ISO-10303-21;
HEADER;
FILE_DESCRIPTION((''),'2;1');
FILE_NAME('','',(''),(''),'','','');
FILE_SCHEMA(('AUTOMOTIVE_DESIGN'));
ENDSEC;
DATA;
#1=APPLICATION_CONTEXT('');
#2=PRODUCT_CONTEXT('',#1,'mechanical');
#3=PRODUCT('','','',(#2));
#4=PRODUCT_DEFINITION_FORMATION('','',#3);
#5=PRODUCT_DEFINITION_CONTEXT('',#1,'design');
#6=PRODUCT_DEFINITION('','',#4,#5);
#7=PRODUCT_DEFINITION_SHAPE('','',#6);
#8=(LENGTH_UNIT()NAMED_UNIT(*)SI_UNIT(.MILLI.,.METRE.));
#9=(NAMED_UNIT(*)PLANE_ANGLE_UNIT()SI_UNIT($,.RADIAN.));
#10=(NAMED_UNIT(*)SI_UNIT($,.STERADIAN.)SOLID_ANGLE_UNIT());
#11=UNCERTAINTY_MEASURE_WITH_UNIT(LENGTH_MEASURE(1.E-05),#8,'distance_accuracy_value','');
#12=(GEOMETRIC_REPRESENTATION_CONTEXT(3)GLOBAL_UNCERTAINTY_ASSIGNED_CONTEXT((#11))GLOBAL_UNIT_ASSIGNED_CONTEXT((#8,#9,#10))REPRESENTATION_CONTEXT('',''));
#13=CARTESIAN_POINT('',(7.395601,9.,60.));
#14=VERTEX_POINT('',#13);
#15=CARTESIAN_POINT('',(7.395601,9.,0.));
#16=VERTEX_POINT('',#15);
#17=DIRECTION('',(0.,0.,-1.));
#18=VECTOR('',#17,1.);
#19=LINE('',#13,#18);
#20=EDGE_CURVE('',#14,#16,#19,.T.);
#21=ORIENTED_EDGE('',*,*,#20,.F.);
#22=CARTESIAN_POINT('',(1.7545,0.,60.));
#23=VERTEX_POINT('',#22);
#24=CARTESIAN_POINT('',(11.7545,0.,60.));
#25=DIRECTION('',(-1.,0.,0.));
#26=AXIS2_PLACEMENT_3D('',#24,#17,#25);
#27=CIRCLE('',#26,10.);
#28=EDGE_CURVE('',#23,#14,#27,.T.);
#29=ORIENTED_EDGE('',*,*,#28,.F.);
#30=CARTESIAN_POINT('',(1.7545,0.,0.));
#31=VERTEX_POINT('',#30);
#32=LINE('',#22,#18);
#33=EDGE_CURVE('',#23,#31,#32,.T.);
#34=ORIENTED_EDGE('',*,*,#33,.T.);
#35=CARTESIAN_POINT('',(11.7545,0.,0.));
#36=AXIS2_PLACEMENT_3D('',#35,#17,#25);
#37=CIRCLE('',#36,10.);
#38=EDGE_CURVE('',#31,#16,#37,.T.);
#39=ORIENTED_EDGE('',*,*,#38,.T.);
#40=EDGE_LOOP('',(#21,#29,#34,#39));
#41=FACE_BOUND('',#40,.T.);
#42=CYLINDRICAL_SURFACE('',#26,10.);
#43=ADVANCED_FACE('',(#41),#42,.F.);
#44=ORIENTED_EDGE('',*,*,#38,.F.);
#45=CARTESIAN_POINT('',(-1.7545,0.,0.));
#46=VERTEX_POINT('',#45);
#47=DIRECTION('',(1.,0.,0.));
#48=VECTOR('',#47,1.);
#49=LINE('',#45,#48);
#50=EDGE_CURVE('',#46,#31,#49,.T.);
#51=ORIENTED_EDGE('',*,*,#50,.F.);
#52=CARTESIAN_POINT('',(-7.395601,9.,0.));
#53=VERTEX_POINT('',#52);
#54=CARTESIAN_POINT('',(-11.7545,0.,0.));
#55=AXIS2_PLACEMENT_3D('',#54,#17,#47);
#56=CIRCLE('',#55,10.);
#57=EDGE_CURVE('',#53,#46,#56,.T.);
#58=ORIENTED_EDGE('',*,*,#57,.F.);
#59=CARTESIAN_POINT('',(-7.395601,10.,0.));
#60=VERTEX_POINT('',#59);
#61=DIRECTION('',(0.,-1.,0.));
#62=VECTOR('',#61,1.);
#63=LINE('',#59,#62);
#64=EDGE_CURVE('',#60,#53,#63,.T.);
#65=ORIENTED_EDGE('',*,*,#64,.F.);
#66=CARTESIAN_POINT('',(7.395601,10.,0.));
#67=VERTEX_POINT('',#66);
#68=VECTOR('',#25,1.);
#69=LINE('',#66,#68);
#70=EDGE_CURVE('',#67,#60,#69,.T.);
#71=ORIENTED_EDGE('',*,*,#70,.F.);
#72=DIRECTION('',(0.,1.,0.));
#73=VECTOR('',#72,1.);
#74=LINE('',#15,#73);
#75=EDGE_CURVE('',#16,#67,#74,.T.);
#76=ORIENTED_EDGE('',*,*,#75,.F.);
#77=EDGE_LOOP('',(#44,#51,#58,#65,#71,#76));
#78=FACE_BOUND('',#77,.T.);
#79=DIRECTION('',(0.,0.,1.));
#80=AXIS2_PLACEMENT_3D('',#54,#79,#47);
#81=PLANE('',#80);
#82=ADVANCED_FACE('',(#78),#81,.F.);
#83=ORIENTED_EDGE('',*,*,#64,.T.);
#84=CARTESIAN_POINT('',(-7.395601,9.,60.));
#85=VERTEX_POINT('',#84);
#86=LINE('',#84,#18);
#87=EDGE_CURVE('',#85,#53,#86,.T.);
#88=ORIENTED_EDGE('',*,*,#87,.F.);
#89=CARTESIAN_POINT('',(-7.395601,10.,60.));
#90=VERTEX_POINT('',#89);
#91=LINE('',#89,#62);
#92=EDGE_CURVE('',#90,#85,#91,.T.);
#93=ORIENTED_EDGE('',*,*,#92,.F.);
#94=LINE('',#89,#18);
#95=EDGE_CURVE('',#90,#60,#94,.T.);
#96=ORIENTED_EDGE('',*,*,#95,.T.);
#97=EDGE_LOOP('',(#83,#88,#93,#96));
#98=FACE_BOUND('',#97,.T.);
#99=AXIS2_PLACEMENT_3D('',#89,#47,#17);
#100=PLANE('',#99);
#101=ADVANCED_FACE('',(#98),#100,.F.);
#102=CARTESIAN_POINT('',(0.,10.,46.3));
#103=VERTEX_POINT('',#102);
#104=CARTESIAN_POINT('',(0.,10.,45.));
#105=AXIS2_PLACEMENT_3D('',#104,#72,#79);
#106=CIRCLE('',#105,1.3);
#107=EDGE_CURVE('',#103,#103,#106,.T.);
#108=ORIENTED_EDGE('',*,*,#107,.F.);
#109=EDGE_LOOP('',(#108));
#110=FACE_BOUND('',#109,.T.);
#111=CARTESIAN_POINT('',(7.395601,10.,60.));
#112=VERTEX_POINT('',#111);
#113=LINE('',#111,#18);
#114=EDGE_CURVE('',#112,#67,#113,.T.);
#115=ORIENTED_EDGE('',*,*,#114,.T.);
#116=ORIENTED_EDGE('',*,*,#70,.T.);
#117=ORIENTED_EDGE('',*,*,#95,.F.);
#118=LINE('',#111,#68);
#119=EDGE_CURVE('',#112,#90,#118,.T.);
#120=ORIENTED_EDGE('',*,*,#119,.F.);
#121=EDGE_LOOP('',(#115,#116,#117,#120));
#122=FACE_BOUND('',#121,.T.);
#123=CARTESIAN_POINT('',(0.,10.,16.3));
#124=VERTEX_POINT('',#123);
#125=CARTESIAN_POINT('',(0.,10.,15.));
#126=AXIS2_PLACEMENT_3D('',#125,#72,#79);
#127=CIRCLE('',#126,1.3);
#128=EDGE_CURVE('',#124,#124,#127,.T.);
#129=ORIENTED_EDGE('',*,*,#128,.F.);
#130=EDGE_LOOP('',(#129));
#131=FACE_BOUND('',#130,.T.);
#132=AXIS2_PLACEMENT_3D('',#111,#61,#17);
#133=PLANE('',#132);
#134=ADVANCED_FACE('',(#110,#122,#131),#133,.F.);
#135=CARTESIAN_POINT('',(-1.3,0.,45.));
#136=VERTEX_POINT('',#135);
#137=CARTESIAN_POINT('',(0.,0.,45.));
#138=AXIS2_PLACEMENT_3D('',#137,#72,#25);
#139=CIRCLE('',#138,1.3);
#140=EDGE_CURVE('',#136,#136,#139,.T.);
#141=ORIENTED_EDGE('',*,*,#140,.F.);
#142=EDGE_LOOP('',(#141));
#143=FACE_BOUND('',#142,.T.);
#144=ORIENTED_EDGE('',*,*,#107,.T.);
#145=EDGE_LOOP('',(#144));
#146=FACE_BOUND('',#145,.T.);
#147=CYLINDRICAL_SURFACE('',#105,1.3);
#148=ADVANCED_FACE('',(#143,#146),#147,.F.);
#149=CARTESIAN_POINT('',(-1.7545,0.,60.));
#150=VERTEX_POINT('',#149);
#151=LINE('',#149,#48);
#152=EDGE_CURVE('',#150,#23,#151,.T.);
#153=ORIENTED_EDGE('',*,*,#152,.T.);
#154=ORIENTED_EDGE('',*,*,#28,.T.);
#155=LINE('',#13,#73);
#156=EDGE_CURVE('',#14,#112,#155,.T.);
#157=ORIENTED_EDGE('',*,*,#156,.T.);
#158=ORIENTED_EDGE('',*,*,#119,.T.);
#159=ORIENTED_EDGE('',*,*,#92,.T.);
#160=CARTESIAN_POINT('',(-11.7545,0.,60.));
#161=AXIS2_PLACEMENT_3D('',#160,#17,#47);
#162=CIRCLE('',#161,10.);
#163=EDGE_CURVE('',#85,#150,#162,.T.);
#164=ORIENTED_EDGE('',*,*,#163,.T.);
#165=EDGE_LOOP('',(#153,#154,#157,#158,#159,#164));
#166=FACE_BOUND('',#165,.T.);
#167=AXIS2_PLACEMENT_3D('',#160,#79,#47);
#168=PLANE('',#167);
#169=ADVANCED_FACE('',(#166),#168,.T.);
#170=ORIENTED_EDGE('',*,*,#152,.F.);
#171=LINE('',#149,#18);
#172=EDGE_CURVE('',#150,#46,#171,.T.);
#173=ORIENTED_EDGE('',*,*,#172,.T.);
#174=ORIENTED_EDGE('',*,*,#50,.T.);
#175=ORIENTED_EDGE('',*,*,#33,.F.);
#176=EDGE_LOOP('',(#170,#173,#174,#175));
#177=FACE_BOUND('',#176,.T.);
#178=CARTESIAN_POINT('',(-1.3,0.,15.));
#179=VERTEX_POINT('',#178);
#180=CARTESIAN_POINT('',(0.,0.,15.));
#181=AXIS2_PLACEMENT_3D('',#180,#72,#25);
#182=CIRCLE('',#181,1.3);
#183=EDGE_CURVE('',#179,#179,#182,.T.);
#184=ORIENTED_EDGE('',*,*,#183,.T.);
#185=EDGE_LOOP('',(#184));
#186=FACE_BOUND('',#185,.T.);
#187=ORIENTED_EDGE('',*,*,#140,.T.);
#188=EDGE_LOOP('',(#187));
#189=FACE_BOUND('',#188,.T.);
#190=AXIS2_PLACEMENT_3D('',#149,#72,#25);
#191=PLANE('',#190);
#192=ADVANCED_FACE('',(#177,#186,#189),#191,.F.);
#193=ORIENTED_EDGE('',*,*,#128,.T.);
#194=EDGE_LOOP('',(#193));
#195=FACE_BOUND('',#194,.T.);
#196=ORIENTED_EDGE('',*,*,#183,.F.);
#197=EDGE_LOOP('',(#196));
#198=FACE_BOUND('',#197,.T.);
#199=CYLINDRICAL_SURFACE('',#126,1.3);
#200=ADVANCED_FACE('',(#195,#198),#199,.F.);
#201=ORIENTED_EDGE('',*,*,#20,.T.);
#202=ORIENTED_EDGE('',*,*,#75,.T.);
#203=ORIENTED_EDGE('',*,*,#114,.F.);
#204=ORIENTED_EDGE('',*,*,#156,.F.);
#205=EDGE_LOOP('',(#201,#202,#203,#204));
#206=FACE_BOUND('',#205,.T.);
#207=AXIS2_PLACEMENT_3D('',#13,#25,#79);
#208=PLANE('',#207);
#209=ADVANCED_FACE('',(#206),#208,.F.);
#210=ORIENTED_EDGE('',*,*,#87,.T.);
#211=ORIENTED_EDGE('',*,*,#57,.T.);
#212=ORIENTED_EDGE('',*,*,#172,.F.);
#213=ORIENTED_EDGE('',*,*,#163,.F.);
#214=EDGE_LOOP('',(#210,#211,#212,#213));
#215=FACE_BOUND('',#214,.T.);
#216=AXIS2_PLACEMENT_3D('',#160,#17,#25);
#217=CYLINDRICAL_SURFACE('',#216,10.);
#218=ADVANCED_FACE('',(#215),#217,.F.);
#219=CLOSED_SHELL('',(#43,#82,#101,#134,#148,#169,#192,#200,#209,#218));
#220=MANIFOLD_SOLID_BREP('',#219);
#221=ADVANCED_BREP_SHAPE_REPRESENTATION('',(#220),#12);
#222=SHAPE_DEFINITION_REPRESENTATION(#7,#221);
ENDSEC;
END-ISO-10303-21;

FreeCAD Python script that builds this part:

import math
import FreeCAD as App
import Part
import Sketcher
Q = App.Units.Quantity

doc = App.newDocument("Part")
body = doc.addObject("PartDesign::Body", "Body")

sketch1 = body.newObject("Sketcher::SketchObject", "Sketch")
sketch1.AttachmentSupport = (doc.getObject("XY_Plane"), [""])
sketch1.MapMode = "FlatFace"
sketch1.addGeometry([
    Part.LineSegment(App.Vector(-1.8, 0, 0), App.Vector(1.8, 0, 0)),
    Part.ArcOfCircle(Part.Circle(App.Vector(11.8, 0, 0), App.Vector(0, 0, 1), 10), math.radians(116), math.radians(180)),
    Part.LineSegment(App.Vector(7.4, 9, 0), App.Vector(7.4, 10, 0)),
    Part.LineSegment(App.Vector(7.4, 10, 0), App.Vector(-7.4, 10, 0)),
    Part.LineSegment(App.Vector(-7.4, 10, 0), App.Vector(-7.4, 9, 0)),
    Part.ArcOfCircle(Part.Circle(App.Vector(-11.8, 0, 0), App.Vector(0, 0, 1), 10), math.radians(0), math.radians(64)),
], False)
sketch1.addConstraint([
    Sketcher.Constraint("Coincident", 0, 2, 1, 2),
    Sketcher.Constraint("Coincident", 1, 1, 2, 1),
    Sketcher.Constraint("Coincident", 2, 2, 3, 1),
    Sketcher.Constraint("Coincident", 3, 2, 4, 1),
    Sketcher.Constraint("Coincident", 4, 2, 5, 2),
    Sketcher.Constraint("Coincident", 5, 1, 0, 1),
    Sketcher.Constraint("Horizontal", 0),
    Sketcher.Constraint("Vertical", 2),
    Sketcher.Constraint("Horizontal", 3),
    Sketcher.Constraint("Vertical", 4),
    Sketcher.Constraint("Equal", 1, 5),
    Sketcher.Constraint("Symmetric", 1, 3, 5, 3, -1, 1),
    Sketcher.Constraint("Symmetric", 1, 1, 4, 2, -2),
    Sketcher.Constraint("PointOnObject", 0, 2, -1),
    Sketcher.Constraint("Radius", 1, Q("10 mm")),
    Sketcher.Constraint("DistanceY", 2, 1, 2, 2, Q("1 mm")),
    Sketcher.Constraint("DistanceY", -1, 1, 1, 1, Q("9 mm")),
    Sketcher.Constraint("DistanceX", 0, 1, 0, 2, Q("3.509 mm")),
])
pad1 = body.newObject("PartDesign::Pad", "Pad")
pad1.Profile = sketch1
pad1.Length = 60

sketch2 = body.newObject("Sketcher::SketchObject", "Sketch001")
sketch2.AttachmentSupport = (doc.getObject("XZ_Plane"), [""])
sketch2.MapMode = "FlatFace"
sketch2.AttachmentOffset = App.Placement(App.Vector(0, 0, -10), App.Rotation())
sketch2.addGeometry([
    Part.Circle(App.Vector(0, 45, 0), App.Vector(0, 0, 1), 1.3),
    Part.Circle(App.Vector(0, 15, 0), App.Vector(0, 0, 1), 1.3),
], False)
sketch2.addConstraint([
    Sketcher.Constraint("Equal", 0, 1),
    Sketcher.Constraint("PointOnObject", 0, 3, -2),
    Sketcher.Constraint("PointOnObject", 1, 3, -2),
    Sketcher.Constraint("Diameter", 0, Q("2.6 mm")),
    Sketcher.Constraint("DistanceY", -1, 1, 0, 3, Q("45 mm")),
    Sketcher.Constraint("DistanceY", -1, 1, 1, 3, Q("15 mm")),
])
doc.recompute()
hole = body.newObject("PartDesign::Hole", "Hole")
hole.Profile = sketch2
hole.ThreadType = "None"
hole.Diameter = 2.6
hole.DepthType = "ThroughAll"
hole.Reversed = True

doc.recompute()
